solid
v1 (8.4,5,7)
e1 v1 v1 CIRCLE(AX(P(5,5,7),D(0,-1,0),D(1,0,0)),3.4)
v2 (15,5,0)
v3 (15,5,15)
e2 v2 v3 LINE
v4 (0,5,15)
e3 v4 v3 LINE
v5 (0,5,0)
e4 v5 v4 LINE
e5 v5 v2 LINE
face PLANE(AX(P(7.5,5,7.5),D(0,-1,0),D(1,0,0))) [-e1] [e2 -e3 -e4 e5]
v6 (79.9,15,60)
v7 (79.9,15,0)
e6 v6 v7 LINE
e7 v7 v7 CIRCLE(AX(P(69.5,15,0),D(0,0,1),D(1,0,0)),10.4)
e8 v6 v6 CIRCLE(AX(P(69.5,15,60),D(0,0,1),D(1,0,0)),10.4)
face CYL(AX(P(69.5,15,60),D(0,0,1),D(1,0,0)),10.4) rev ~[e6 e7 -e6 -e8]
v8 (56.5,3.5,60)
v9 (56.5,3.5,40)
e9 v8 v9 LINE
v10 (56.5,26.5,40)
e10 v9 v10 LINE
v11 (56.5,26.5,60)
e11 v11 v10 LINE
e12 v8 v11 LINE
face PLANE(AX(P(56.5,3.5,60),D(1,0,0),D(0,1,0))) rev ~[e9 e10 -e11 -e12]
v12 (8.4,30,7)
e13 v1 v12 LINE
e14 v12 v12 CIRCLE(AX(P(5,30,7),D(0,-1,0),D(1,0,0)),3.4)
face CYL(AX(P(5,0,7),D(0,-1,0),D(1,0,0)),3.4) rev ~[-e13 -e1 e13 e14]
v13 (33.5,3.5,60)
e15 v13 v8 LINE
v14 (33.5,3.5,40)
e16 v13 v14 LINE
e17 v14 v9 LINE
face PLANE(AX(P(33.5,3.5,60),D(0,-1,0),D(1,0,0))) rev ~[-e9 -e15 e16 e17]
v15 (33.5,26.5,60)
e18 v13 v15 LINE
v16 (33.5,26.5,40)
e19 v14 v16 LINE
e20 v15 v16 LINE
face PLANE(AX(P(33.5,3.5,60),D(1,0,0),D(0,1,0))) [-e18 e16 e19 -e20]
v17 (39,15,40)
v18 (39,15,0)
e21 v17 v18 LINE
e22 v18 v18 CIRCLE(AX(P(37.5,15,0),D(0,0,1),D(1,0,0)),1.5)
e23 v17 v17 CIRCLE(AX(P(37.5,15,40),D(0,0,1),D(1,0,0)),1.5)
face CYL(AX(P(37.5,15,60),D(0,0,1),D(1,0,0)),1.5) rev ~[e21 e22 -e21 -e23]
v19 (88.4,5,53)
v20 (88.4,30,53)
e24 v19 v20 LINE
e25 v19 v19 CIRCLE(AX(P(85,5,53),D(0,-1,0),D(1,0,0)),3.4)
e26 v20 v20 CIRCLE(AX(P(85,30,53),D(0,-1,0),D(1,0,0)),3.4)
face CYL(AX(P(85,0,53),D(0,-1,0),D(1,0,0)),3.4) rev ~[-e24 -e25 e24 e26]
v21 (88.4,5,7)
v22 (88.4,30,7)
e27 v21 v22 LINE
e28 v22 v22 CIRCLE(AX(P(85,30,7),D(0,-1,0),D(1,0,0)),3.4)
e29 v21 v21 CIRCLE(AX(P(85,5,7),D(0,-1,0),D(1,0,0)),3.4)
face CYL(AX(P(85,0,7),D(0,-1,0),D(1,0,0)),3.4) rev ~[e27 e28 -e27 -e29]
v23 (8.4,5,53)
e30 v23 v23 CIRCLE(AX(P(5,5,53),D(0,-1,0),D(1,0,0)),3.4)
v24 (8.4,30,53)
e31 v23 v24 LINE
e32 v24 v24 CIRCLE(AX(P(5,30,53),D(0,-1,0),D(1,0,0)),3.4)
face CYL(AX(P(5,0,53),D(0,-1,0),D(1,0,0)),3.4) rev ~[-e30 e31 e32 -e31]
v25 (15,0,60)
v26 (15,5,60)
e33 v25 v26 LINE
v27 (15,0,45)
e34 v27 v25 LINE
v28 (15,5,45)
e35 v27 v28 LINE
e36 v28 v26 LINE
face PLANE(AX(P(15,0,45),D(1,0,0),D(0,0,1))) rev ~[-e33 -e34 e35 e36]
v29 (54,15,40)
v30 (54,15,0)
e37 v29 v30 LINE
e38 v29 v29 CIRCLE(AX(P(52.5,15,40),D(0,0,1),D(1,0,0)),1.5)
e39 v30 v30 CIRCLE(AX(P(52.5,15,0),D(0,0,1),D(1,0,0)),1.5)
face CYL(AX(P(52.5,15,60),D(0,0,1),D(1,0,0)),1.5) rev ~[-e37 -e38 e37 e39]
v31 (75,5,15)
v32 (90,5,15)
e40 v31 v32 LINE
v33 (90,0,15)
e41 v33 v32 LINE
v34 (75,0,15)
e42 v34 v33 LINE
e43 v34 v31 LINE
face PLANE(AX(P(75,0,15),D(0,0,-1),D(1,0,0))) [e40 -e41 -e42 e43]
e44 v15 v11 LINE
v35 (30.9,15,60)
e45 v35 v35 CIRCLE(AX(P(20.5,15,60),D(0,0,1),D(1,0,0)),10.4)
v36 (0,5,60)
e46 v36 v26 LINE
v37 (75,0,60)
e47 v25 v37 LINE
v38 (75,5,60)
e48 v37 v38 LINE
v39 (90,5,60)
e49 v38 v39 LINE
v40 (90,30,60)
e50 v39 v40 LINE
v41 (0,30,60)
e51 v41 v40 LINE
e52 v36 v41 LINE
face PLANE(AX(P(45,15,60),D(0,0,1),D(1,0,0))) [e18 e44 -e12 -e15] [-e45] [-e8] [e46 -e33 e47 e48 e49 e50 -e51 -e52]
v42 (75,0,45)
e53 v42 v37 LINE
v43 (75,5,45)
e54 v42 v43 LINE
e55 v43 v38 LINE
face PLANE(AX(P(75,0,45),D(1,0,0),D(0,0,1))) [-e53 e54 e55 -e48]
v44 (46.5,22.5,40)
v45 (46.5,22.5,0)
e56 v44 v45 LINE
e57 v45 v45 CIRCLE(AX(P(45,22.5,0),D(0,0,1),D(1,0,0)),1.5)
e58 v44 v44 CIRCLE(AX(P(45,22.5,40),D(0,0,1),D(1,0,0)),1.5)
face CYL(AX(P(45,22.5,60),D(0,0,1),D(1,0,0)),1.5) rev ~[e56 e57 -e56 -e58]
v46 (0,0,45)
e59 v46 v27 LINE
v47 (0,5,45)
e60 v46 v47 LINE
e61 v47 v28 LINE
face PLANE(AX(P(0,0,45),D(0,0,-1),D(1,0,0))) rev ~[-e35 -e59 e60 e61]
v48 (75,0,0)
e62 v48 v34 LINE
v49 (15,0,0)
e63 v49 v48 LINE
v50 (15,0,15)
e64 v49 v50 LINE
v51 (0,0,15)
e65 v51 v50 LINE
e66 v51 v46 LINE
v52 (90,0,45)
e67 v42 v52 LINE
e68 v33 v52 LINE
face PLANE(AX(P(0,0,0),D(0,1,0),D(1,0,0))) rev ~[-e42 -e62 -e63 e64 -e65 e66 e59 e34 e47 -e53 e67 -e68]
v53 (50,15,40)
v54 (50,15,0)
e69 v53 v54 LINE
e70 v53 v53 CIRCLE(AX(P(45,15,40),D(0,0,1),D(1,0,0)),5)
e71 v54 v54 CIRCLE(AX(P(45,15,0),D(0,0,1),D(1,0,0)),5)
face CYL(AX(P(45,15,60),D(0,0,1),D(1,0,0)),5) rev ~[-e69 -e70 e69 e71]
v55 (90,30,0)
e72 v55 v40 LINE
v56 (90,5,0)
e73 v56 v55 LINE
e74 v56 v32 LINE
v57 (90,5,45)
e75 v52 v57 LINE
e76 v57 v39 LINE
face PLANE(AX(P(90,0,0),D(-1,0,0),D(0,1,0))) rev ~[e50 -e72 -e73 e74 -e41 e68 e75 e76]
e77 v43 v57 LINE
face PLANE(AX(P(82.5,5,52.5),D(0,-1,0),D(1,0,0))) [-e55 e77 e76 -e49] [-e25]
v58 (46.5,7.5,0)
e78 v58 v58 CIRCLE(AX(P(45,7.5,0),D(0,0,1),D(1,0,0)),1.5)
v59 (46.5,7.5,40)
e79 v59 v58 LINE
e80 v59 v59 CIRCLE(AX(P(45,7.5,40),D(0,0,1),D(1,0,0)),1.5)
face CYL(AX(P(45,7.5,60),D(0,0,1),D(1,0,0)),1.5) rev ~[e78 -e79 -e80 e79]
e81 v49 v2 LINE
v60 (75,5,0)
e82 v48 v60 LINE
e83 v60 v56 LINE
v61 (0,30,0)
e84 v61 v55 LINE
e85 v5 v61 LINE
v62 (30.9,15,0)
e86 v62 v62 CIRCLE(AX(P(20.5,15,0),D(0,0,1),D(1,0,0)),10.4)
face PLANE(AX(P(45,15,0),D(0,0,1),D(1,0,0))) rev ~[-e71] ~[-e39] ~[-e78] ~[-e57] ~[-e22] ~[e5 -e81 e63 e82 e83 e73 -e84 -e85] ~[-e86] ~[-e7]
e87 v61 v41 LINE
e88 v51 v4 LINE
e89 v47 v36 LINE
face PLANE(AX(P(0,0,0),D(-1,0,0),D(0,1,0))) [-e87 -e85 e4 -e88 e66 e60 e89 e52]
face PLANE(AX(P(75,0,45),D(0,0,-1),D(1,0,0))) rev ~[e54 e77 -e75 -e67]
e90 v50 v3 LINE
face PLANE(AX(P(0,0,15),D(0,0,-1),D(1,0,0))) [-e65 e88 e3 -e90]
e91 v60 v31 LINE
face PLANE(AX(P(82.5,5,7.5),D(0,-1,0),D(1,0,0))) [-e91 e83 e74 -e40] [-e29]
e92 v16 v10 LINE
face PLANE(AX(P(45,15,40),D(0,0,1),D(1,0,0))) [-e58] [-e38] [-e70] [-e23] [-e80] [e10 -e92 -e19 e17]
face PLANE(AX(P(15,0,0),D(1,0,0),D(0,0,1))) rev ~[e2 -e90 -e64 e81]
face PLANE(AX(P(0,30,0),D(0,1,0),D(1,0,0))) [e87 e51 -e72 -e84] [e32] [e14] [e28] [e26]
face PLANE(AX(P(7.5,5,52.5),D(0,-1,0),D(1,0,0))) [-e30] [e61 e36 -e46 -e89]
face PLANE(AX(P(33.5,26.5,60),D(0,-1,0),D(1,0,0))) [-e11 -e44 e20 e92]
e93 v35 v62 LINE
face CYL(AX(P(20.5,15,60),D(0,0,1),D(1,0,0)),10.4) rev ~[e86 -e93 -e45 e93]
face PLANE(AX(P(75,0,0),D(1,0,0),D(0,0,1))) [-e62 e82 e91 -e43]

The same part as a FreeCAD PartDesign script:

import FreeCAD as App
import Part
import Sketcher

V = App.Vector


def add_polygon(sketch, points):
    """Adds a closed chain of lines whose ends are joined by coincident constraints."""
    first, n = sketch.GeometryCount, len(points)
    for a, b in zip(points, points[1:] + points[:1]):
        sketch.addGeometry(Part.LineSegment(App.Vector(*a, 0), App.Vector(*b, 0)), False)
    for i in range(n):
        sketch.addConstraint(Sketcher.Constraint("Coincident", first + i, 2, first + (i + 1) % n, 1))

doc = App.newDocument("Part")
params = doc.addObject("Spreadsheet::Sheet", "Params")
for row, (alias, value) in enumerate([
    ("sketch1_width", "90 mm"),
    ("sketch1_height", "30 mm"),
    ("pad1_length", "60 mm"),
    ("sketch2_diameter", "10 mm"),
    ("sketch2_diameter2", "3 mm"),
    ("sketch2_diameter3", "20.8 mm"),
    ("pocket1_length", "60 mm"),
    ("sketch3_diameter", "6.8 mm"),
    ("pocket2_length", "30 mm"),
    ("sketch4_width", "23 mm"),
    ("pocket3_length", "20 mm"),
    ("sketch5_width", "15 mm"),
    ("pocket4_length", "5 mm"),
], start=1):
    params.set(f"A{row}", alias)
    params.set(f"B{row}", "=" + value)
    params.setAlias(f"B{row}", alias)

body = doc.addObject("PartDesign::Body", "Body")

# Sketch on XY plane
sketch1 = body.newObject("Sketcher::SketchObject", "Sketch")
sketch1.AttachmentSupport = (doc.getObject("XY_Plane"), [""])
sketch1.MapMode = "FlatFace"
add_polygon(sketch1, [(0, 30), (0, 0), (90, 0), (90, 30)])  # lines 0-3
sketch1.addConstraint([
    Sketcher.Constraint("Vertical", 0),
    Sketcher.Constraint("Horizontal", 1),
    Sketcher.Constraint("Vertical", 2),
    Sketcher.Constraint("Horizontal", 3),
    Sketcher.Constraint("Coincident", 0, 2, -1, 1),
    Sketcher.Constraint("DistanceX", 1, 1, 1, 2, 90.0),
    Sketcher.Constraint("DistanceY", 0, 2, 0, 1, 30.0),
])
sketch1.setExpression("Constraints[9]", "Params.sketch1_width")
sketch1.setExpression("Constraints[10]", "Params.sketch1_height")
pad1 = body.newObject("PartDesign::Pad", "Pad")
pad1.Profile = sketch1
pad1.setExpression("Length", "Params.pad1_length")

# Sketch on XY plane
sketch2 = body.newObject("Sketcher::SketchObject", "Sketch001")
sketch2.AttachmentSupport = (doc.getObject("XY_Plane"), [""])
sketch2.MapMode = "FlatFace"
sketch2.AttachmentOffset = App.Placement(V(0, 0, 60), App.Rotation())
sketch2.addGeometry([
    Part.Circle(V(45, 15, 0), V(0, 0, 1), 5),  # 0
    Part.Circle(V(45, 22.5, 0), V(0, 0, 1), 1.5),  # 1
    Part.Circle(V(37.5, 15, 0), V(0, 0, 1), 1.5),  # 2
    Part.Circle(V(45, 7.5, 0), V(0, 0, 1), 1.5),  # 3
    Part.Circle(V(52.5, 15, 0), V(0, 0, 1), 1.5),  # 4
    Part.Circle(V(20.5, 15, 0), V(0, 0, 1), 10.4),  # 5
    Part.Circle(V(69.5, 15, 0), V(0, 0, 1), 10.4),  # 6
], False)
sketch2.addConstraint([
    Sketcher.Constraint("Equal", 1, 2),
    Sketcher.Constraint("Equal", 2, 3),
    Sketcher.Constraint("Equal", 3, 4),
    Sketcher.Constraint("Equal", 5, 6),
    Sketcher.Constraint("Horizontal", 0, 3, 2, 3),
    Sketcher.Constraint("Horizontal", 2, 3, 4, 3),
    Sketcher.Constraint("Horizontal", 4, 3, 5, 3),
    Sketcher.Constraint("Horizontal", 5, 3, 6, 3),
    Sketcher.Constraint("Vertical", 0, 3, 1, 3),
    Sketcher.Constraint("Vertical", 1, 3, 3, 3),
    Sketcher.Constraint("Diameter", 0, 10.0),
    Sketcher.Constraint("Diameter", 1, 3.0),
    Sketcher.Constraint("Diameter", 5, 20.8),
    Sketcher.Constraint("DistanceX", -1, 1, 0, 3, 45.0),
    Sketcher.Constraint("DistanceY", -1, 1, 0, 3, 15.0),
    Sketcher.Constraint("DistanceY", 3, 3, 1, 3, 15.0),
    Sketcher.Constraint("DistanceX", 2, 3, 4, 3, 15.0),
    Sketcher.Constraint("DistanceX", 5, 3, 2, 3, 17.0),
    Sketcher.Constraint("DistanceX", 4, 3, 6, 3, 17.0),
    Sketcher.Constraint("DistanceY", -1, 1, 1, 3, 22.5),
    Sketcher.Constraint("DistanceX", -1, 1, 2, 3, 37.5),
])
sketch2.setExpression("Constraints[10]", "Params.sketch2_diameter")
sketch2.setExpression("Constraints[11]", "Params.sketch2_diameter2")
sketch2.setExpression("Constraints[12]", "Params.sketch2_diameter3")
pocket1 = body.newObject("PartDesign::Pocket", "Pocket")
pocket1.Profile = sketch2
pocket1.setExpression("Length", "Params.pocket1_length")

# Sketch on XZ plane
sketch3 = body.newObject("Sketcher::SketchObject", "Sketch002")
sketch3.AttachmentSupport = (doc.getObject("XZ_Plane"), [""])
sketch3.MapMode = "FlatFace"
sketch3.addGeometry([
    Part.Circle(V(5, 53, 0), V(0, 0, 1), 3.4),
    Part.Circle(V(5, 7, 0), V(0, 0, 1), 3.4),
    Part.Circle(V(85, 53, 0), V(0, 0, 1), 3.4),
    Part.Circle(V(85, 7, 0), V(0, 0, 1), 3.4),
], False)
sketch3.addConstraint([
    Sketcher.Constraint("Equal", 0, 1),
    Sketcher.Constraint("Equal", 1, 2),
    Sketcher.Constraint("Equal", 2, 3),
    Sketcher.Constraint("Horizontal", 0, 3, 2, 3),
    Sketcher.Constraint("Horizontal", 1, 3, 3, 3),
    Sketcher.Constraint("Vertical", 0, 3, 1, 3),
    Sketcher.Constraint("Vertical", 2, 3, 3, 3),
    Sketcher.Constraint("Diameter", 0, 6.8),
    Sketcher.Constraint("DistanceX", -1, 1, 0, 3, 5.0),
    Sketcher.Constraint("DistanceY", -1, 1, 0, 3, 53.0),
    Sketcher.Constraint("DistanceY", -1, 1, 1, 3, 7.0),
    Sketcher.Constraint("DistanceX", -1, 1, 2, 3, 85.0),
])
sketch3.setExpression("Constraints[7]", "Params.sketch3_diameter")
pocket2 = body.newObject("PartDesign::Pocket", "Pocket001")
pocket2.Profile = sketch3
pocket2.setExpression("Length", "Params.pocket2_length")

# Sketch on XY plane
sketch4 = body.newObject("Sketcher::SketchObject", "Sketch003")
sketch4.AttachmentSupport = (doc.getObject("XY_Plane"), [""])
sketch4.MapMode = "FlatFace"
sketch4.AttachmentOffset = App.Placement(V(0, 0, 60), App.Rotation())
add_polygon(sketch4, [(34, 26), (34, 4), (56, 4), (56, 26)])  # lines 0-3
sketch4.addConstraint([
    Sketcher.Constraint("Vertical", 0),
    Sketcher.Constraint("Horizontal", 1),
    Sketcher.Constraint("Vertical", 2),
    Sketcher.Constraint("Horizontal", 3),
    Sketcher.Constraint("Equal", 3, 0),
    Sketcher.Constraint("DistanceX", 1, 1, 1, 2, 23.0),
    Sketcher.Constraint("DistanceX", -1, 1, 0, 2, 33.5),
    Sketcher.Constraint("DistanceY", -1, 1, 0, 2, 3.5),
])
sketch4.setExpression("Constraints[9]", "Params.sketch4_width")
pocket3 = body.newObject("PartDesign::Pocket", "Pocket002")
pocket3.Profile = sketch4
pocket3.setExpression("Length", "Params.pocket3_length")

# Sketch on XZ plane
sketch5 = body.newObject("Sketcher::SketchObject", "Sketch004")
sketch5.AttachmentSupport = (doc.getObject("XZ_Plane"), [""])
sketch5.MapMode = "FlatFace"
add_polygon(sketch5, [(0, 60), (0, 45), (15, 45), (15, 60)])  # lines 0-3
add_polygon(sketch5, [(75, 60), (75, 45), (90, 45), (90, 60)])  # lines 4-7
add_polygon(sketch5, [(75, 15), (75, 0), (90, 0), (90, 15)])  # lines 8-11
add_polygon(sketch5, [(0, 15), (0, 0), (15, 0), (15, 15)])  # lines 12-15
sketch5.addConstraint([
    Sketcher.Constraint("Vertical", 0),
    Sketcher.Constraint("Horizontal", 1),
    Sketcher.Constraint("Vertical", 2),
    Sketcher.Constraint("Horizontal", 3),
    Sketcher.Constraint("Vertical", 4),
    Sketcher.Constraint("Horizontal", 5),
    Sketcher.Constraint("Vertical", 6),
    Sketcher.Constraint("Horizontal", 7),
    Sketcher.Constraint("Vertical", 8),
    Sketcher.Constraint("Horizontal", 9),
    Sketcher.Constraint("Vertical", 10),
    Sketcher.Constraint("Horizontal", 11),
    Sketcher.Constraint("Vertical", 12),
    Sketcher.Constraint("Horizontal", 13),
    Sketcher.Constraint("Vertical", 14),
    Sketcher.Constraint("Horizontal", 15),
    Sketcher.Constraint("Coincident", 12, 2, -1, 1),
    Sketcher.Constraint("PointOnObject", 0, 2, -2),
    Sketcher.Constraint("PointOnObject", 8, 2, -1),
    Sketcher.Constraint("Horizontal", 1, 2, 4, 2),
    Sketcher.Constraint("Horizontal", 3, 2, 6, 2),
    Sketcher.Constraint("Horizontal", 11, 2, 14, 2),
    Sketcher.Constraint("Vertical", 7, 2, 8, 2),
    Sketcher.Constraint("Vertical", 6, 2, 9, 2),
    Sketcher.Constraint("Vertical", 2, 2, 13, 2),
    Sketcher.Constraint("Equal", 3, 5),
    Sketcher.Constraint("Equal", 15, 0),
    Sketcher.Constraint("Equal", 6, 8),
    Sketcher.Constraint("DistanceX", 1, 1, 1, 2, 15.0),
    Sketcher.Constraint("DistanceY", -1, 1, 0, 2, 45.0),
    Sketcher.Constraint("DistanceX", -1, 1, 4, 2, 75.0),
])
sketch5.setExpression("Constraints[44]", "Params.sketch5_width")
pocket4 = body.newObject("PartDesign::Pocket", "Pocket003")
pocket4.Profile = sketch5
pocket4.setExpression("Length", "Params.pocket4_length")

doc.recompute()
